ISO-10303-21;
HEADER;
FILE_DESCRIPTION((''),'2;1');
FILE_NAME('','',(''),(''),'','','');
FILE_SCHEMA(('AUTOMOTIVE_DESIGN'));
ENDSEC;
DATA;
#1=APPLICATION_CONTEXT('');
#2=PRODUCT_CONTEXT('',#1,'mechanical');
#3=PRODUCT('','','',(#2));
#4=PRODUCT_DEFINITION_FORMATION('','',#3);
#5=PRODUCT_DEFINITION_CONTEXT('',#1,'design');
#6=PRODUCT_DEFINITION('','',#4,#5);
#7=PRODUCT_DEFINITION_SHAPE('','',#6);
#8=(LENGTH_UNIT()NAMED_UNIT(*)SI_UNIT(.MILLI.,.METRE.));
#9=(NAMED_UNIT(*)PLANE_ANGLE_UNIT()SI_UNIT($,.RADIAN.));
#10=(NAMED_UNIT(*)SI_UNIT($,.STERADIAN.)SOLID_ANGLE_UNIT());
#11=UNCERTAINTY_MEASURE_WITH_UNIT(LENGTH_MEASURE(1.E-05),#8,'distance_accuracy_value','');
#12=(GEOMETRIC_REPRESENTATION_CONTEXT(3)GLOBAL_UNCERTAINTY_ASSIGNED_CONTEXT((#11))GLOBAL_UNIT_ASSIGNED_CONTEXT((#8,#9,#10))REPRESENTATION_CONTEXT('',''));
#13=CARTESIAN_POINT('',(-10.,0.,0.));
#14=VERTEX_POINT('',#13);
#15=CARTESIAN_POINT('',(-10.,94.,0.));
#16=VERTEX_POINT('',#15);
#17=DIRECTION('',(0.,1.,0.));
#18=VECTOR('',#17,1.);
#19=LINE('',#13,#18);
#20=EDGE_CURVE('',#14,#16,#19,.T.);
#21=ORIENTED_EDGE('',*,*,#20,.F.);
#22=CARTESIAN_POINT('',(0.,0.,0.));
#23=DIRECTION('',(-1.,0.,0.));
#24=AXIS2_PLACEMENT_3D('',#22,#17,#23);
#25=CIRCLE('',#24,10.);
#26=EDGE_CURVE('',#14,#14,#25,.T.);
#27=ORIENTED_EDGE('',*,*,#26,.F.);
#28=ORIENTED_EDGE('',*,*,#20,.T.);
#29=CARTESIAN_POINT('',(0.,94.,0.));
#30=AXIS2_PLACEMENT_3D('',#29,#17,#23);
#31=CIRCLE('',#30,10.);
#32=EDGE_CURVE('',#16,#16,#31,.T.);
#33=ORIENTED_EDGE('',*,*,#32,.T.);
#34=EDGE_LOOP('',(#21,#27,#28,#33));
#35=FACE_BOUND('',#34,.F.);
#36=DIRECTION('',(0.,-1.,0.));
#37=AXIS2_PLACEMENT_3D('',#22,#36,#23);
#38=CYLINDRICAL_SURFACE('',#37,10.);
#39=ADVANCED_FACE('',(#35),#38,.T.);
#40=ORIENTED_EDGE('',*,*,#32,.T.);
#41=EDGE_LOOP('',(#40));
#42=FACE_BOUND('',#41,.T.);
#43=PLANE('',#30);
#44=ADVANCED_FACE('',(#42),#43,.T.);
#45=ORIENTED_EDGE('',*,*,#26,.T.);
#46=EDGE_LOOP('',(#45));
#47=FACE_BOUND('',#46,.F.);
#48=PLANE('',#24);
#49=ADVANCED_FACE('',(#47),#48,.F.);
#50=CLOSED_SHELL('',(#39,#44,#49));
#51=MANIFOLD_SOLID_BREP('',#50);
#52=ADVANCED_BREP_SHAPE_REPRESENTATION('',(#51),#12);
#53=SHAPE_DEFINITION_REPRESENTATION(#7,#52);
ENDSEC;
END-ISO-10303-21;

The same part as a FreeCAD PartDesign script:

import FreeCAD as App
import Part
import Sketcher

doc = App.newDocument("Part")
body = doc.addObject("PartDesign::Body", "Body")

sketch1 = doc.addObject("Sketcher::SketchObject", "Sketch")
body.addObject(sketch1)
sketch1.AttachmentSupport = (doc.XZ_Plane, [""])
sketch1.MapMode = "FlatFace"
sketch1.addGeometry(Part.Circle(App.Vector(0, 0, 0), App.Vector(0, 0, 1), 10), False)
sketch1.addConstraint([
    Sketcher.Constraint("Coincident", 0, 3, -1, 1),
    Sketcher.Constraint("Diameter", 0, 20.0),
])
pad1 = doc.addObject("PartDesign::Pad", "Pad")
body.addObject(pad1)
pad1.Profile = sketch1
pad1.Length = 94
pad1.Reversed = True

doc.recompute()
